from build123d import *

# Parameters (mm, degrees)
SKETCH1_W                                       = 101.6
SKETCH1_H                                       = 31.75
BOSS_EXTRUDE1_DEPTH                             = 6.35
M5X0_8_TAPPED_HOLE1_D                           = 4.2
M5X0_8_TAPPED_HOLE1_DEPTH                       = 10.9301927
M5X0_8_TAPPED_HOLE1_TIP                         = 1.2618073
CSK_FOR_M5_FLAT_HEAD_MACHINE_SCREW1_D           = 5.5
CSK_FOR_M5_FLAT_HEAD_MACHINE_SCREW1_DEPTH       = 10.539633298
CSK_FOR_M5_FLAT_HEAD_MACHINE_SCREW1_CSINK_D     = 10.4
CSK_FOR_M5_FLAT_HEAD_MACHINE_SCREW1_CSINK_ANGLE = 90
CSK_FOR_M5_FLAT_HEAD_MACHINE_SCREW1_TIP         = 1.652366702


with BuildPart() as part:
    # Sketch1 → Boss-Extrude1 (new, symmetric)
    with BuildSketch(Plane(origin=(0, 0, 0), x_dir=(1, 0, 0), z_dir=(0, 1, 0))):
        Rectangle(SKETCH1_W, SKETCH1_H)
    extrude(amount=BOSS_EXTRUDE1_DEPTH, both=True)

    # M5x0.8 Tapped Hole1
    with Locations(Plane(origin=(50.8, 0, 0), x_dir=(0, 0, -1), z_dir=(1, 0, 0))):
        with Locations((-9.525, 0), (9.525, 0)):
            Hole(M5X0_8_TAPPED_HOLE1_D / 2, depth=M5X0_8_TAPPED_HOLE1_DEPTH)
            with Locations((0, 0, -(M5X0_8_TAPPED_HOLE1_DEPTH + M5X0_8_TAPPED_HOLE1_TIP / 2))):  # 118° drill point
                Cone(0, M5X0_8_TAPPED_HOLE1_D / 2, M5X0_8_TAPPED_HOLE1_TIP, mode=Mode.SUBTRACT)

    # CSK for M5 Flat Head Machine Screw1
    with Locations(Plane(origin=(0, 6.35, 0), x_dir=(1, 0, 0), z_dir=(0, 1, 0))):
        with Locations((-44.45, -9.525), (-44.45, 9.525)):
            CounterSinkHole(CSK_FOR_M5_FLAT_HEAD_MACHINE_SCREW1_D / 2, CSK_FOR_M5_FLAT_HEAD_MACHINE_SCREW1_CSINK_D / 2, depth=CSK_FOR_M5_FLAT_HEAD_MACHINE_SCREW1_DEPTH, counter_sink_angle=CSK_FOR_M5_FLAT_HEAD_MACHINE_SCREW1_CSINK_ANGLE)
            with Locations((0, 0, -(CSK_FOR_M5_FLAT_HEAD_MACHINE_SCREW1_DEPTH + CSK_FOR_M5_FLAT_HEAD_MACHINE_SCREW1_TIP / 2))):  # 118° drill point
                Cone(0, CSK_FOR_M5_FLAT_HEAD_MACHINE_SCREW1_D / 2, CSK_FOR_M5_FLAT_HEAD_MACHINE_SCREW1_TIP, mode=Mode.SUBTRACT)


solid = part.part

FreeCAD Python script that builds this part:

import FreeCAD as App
import Part
import Sketcher
Q = App.Units.Quantity


def add_polygon(sketch, points):
    """Adds a closed chain of lines whose ends are joined by coincident constraints."""
    first, n = sketch.GeometryCount, len(points)
    for a, b in zip(points, points[1:] + points[:1]):
        sketch.addGeometry(Part.LineSegment(App.Vector(*a, 0), App.Vector(*b, 0)), False)
    for i in range(n):
        sketch.addConstraint(Sketcher.Constraint("Coincident", first + i, 2, first + (i + 1) % n, 1))

doc = App.newDocument("Part")
body = doc.addObject("PartDesign::Body", "Body")

sketch1 = body.newObject("Sketcher::SketchObject", "Sketch")
sketch1.AttachmentSupport = (doc.getObject("XZ_Plane"), [""])
sketch1.MapMode = "FlatFace"
add_polygon(sketch1, [(-51, -16), (-51, 16), (51, 16), (51, -16)])
sketch1.addConstraint(Sketcher.Constraint("Vertical", 0))
sketch1.addConstraint(Sketcher.Constraint("Horizontal", 1))
sketch1.addConstraint(Sketcher.Constraint("Vertical", 2))
sketch1.addConstraint(Sketcher.Constraint("Horizontal", 3))
sketch1.addConstraint(Sketcher.Constraint("Symmetric", 0, 2, 2, 2, -1, 1))
sketch1.addConstraint(Sketcher.Constraint("DistanceX", 1, 1, 1, 2, Q("4 in")))
sketch1.addConstraint(Sketcher.Constraint("DistanceY", 0, 1, 0, 2, Q("1.25 in")))
pad1 = body.newObject("PartDesign::Pad", "Pad")
pad1.Profile = sketch1
pad1.Length = Q("0.5 in")
pad1.Midplane = True

sketch2 = body.newObject("Sketcher::SketchObject", "Sketch001")
sketch2.AttachmentSupport = (doc.getObject("YZ_Plane"), [""])
sketch2.MapMode = "FlatFace"
sketch2.AttachmentOffset = App.Placement(App.Vector(0, 0, 2 * 25.4), App.Rotation())
sketch2.addGeometry(Part.Circle(App.Vector(0, 9.5, 0), App.Vector(0, 0, 1), 2.1), False)
sketch2.addGeometry(Part.Circle(App.Vector(0, -9.5, 0), App.Vector(0, 0, 1), 2.1), False)
sketch2.addConstraint(Sketcher.Constraint("Equal", 0, 1))
sketch2.addConstraint(Sketcher.Constraint("Symmetric", 0, 3, 1, 3, -1, 1))
sketch2.addConstraint(Sketcher.Constraint("PointOnObject", 0, 3, -2))
sketch2.addConstraint(Sketcher.Constraint("Diameter", 0, 4.2))
sketch2.addConstraint(Sketcher.Constraint("DistanceY", 1, 3, 0, 3, Q("0.75 in")))
doc.recompute()
hole = body.newObject("PartDesign::Hole", "Hole")
hole.Profile = sketch2
hole.ThreadType = "None"
hole.Diameter = 4.2
hole.DepthType = "Dimension"
hole.Depth = 10.930193
hole.DrillPoint = "Angled"
hole.DrillPointAngle = 118

sketch3 = body.newObject("Sketcher::SketchObject", "Sketch002")
sketch3.AttachmentSupport = (doc.getObject("XZ_Plane"), [""])
sketch3.MapMode = "FlatFace"
sketch3.AttachmentOffset = App.Placement(App.Vector(0, 0, -0.25 * 25.4), App.Rotation())
sketch3.addGeometry(Part.Circle(App.Vector(-44.5, 9.5, 0), App.Vector(0, 0, 1), 2.8), False)
sketch3.addGeometry(Part.Circle(App.Vector(-44.5, -9.5, 0), App.Vector(0, 0, 1), 2.8), False)
sketch3.addConstraint(Sketcher.Constraint("Equal", 0, 1))
sketch3.addConstraint(Sketcher.Constraint("Symmetric", 0, 3, 1, 3, -1))
sketch3.addConstraint(Sketcher.Constraint("Diameter", 0, 5.5))
sketch3.addConstraint(Sketcher.Constraint("DistanceX", 0, 3, -1, 1, Q("1.75 in")))
sketch3.addConstraint(Sketcher.Constraint("DistanceY", 1, 3, 0, 3, Q("0.75 in")))
doc.recompute()
hole2 = body.newObject("PartDesign::Hole", "Hole001")
hole2.Profile = sketch3
hole2.ThreadType = "None"
hole2.Diameter = 5.5
hole2.DepthType = "Dimension"
hole2.Depth = 10.539633
hole2.DrillPoint = "Angled"
hole2.DrillPointAngle = 118
hole2.HoleCutType = "Countersink"
hole2.HoleCutDiameter = 10.4
hole2.HoleCutCountersinkAngle = 90
hole2.Reversed = True

doc.recompute()
